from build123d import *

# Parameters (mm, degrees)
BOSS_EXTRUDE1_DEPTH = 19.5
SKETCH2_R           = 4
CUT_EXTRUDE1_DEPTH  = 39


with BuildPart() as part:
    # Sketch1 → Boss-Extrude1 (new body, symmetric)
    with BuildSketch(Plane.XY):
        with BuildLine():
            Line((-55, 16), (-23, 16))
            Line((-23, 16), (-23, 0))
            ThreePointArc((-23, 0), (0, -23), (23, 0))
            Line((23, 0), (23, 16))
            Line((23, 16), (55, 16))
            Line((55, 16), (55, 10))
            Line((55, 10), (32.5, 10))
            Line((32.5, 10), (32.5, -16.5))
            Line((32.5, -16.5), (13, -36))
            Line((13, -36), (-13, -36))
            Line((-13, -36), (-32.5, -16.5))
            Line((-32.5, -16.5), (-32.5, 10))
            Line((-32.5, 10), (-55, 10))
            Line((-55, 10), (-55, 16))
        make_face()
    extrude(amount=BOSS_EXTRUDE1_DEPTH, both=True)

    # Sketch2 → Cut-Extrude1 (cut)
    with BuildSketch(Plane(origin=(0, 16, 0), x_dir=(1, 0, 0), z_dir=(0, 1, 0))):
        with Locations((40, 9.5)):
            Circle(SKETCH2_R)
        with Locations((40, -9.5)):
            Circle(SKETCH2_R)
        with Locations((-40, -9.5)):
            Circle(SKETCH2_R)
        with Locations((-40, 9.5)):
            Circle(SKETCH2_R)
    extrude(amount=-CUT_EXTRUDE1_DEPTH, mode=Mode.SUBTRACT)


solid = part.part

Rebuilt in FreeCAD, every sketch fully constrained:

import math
import FreeCAD as App
import Part
import Sketcher
Q = App.Units.Quantity

doc = App.newDocument("Part")
body = doc.addObject("PartDesign::Body", "Body")

sketch1 = body.newObject("Sketcher::SketchObject", "Sketch")
sketch1.AttachmentSupport = (doc.getObject("XY_Plane"), [""])
sketch1.MapMode = "FlatFace"
sketch1.addGeometry(Part.LineSegment(App.Vector(-23, 16, 0), App.Vector(-55, 16, 0)), False)
sketch1.addGeometry(Part.LineSegment(App.Vector(-55, 16, 0), App.Vector(-55, 10, 0)), False)
sketch1.addGeometry(Part.LineSegment(App.Vector(-55, 10, 0), App.Vector(-32, 10, 0)), False)
sketch1.addGeometry(Part.LineSegment(App.Vector(-32, 10, 0), App.Vector(-32, -16, 0)), False)
sketch1.addGeometry(Part.LineSegment(App.Vector(-32, -16, 0), App.Vector(-13, -36, 0)), False)
sketch1.addGeometry(Part.LineSegment(App.Vector(-13, -36, 0), App.Vector(13, -36, 0)), False)
sketch1.addGeometry(Part.LineSegment(App.Vector(13, -36, 0), App.Vector(32, -16, 0)), False)
sketch1.addGeometry(Part.LineSegment(App.Vector(32, -16, 0), App.Vector(32, 10, 0)), False)
sketch1.addGeometry(Part.LineSegment(App.Vector(32, 10, 0), App.Vector(55, 10, 0)), False)
sketch1.addGeometry(Part.LineSegment(App.Vector(55, 10, 0), App.Vector(55, 16, 0)), False)
sketch1.addGeometry(Part.LineSegment(App.Vector(55, 16, 0), App.Vector(23, 16, 0)), False)
sketch1.addGeometry(Part.LineSegment(App.Vector(23, 16, 0), App.Vector(23, 0, 0)), False)
sketch1.addGeometry(Part.ArcOfCircle(Part.Circle(App.Vector(0, 0, 0), App.Vector(0, 0, 1), 23), math.radians(180), math.radians(360)), False)
sketch1.addGeometry(Part.LineSegment(App.Vector(-23, 0, 0), App.Vector(-23, 16, 0)), False)
sketch1.addConstraint(Sketcher.Constraint("Coincident", 0, 2, 1, 1))
sketch1.addConstraint(Sketcher.Constraint("Coincident", 1, 2, 2, 1))
sketch1.addConstraint(Sketcher.Constraint("Coincident", 2, 2, 3, 1))
sketch1.addConstraint(Sketcher.Constraint("Coincident", 3, 2, 4, 1))
sketch1.addConstraint(Sketcher.Constraint("Coincident", 4, 2, 5, 1))
sketch1.addConstraint(Sketcher.Constraint("Coincident", 5, 2, 6, 1))
sketch1.addConstraint(Sketcher.Constraint("Coincident", 6, 2, 7, 1))
sketch1.addConstraint(Sketcher.Constraint("Coincident", 7, 2, 8, 1))
sketch1.addConstraint(Sketcher.Constraint("Coincident", 8, 2, 9, 1))
sketch1.addConstraint(Sketcher.Constraint("Coincident", 9, 2, 10, 1))
sketch1.addConstraint(Sketcher.Constraint("Coincident", 10, 2, 11, 1))
sketch1.addConstraint(Sketcher.Constraint("Tangent", 11, 2, 12, 2))
sketch1.addConstraint(Sketcher.Constraint("Tangent", 12, 1, 13, 1))
sketch1.addConstraint(Sketcher.Constraint("Coincident", 13, 2, 0, 1))
sketch1.addConstraint(Sketcher.Constraint("Horizontal", 0))
sketch1.addConstraint(Sketcher.Constraint("Vertical", 1))
sketch1.addConstraint(Sketcher.Constraint("Horizontal", 2))
sketch1.addConstraint(Sketcher.Constraint("Vertical", 3))
sketch1.addConstraint(Sketcher.Constraint("Horizontal", 5))
sketch1.addConstraint(Sketcher.Constraint("Vertical", 7))
sketch1.addConstraint(Sketcher.Constraint("Horizontal", 8))
sketch1.addConstraint(Sketcher.Constraint("Vertical", 9))
sketch1.addConstraint(Sketcher.Constraint("Horizontal", 10))
sketch1.addConstraint(Sketcher.Constraint("Vertical", 11))
sketch1.addConstraint(Sketcher.Constraint("Vertical", 13))
sketch1.addConstraint(Sketcher.Constraint("Coincident", 12, 3, -1, 1))
sketch1.addConstraint(Sketcher.Constraint("Symmetric", 3, 2, 6, 2, -2))
sketch1.addConstraint(Sketcher.Constraint("Symmetric", 1, 2, 8, 2, -2))
sketch1.addConstraint(Sketcher.Constraint("Perpendicular", 4, 6))
sketch1.addConstraint(Sketcher.Constraint("Horizontal", 0, 2, 9, 2))
sketch1.addConstraint(Sketcher.Constraint("Equal", 4, 6))
sketch1.addConstraint(Sketcher.Constraint("Radius", 12, Q("23 mm")))
sketch1.addConstraint(Sketcher.Constraint("DistanceX", 0, 2, 0, 1, Q("32 mm")))
sketch1.addConstraint(Sketcher.Constraint("DistanceX", 5, 1, 5, 2, Q("26 mm")))
sketch1.addConstraint(Sketcher.Constraint("DistanceY", 1, 2, 1, 1, Q("6 mm")))
sketch1.addConstraint(Sketcher.Constraint("DistanceY", 11, 2, 11, 1, Q("16 mm")))
sketch1.addConstraint(Sketcher.Constraint("DistanceX", 2, 1, 2, 2, Q("22.5 mm")))
sketch1.addConstraint(Sketcher.Constraint("DistanceY", 3, 2, 3, 1, Q("26.5 mm")))
pad1 = body.newObject("PartDesign::Pad", "Pad")
pad1.Profile = sketch1
pad1.Length = 39
pad1.Midplane = True

sketch2 = body.newObject("Sketcher::SketchObject", "Sketch001")
sketch2.AttachmentSupport = (doc.getObject("XZ_Plane"), [""])
sketch2.MapMode = "FlatFace"
sketch2.AttachmentOffset = App.Placement(App.Vector(0, 0, -16), App.Rotation())
sketch2.addGeometry(Part.Circle(App.Vector(40, -9.5, 0), App.Vector(0, 0, 1), 4), False)
sketch2.addGeometry(Part.Circle(App.Vector(40, 9.5, 0), App.Vector(0, 0, 1), 4), False)
sketch2.addGeometry(Part.Circle(App.Vector(-40, 9.5, 0), App.Vector(0, 0, 1), 4), False)
sketch2.addGeometry(Part.Circle(App.Vector(-40, -9.5, 0), App.Vector(0, 0, 1), 4), False)
sketch2.addConstraint(Sketcher.Constraint("Equal", 0, 1))
sketch2.addConstraint(Sketcher.Constraint("Equal", 1, 2))
sketch2.addConstraint(Sketcher.Constraint("Equal", 2, 3))
sketch2.addConstraint(Sketcher.Constraint("Symmetric", 0, 3, 2, 3, -1, 1))
sketch2.addConstraint(Sketcher.Constraint("Symmetric", 1, 3, 3, 3, -1, 1))
sketch2.addConstraint(Sketcher.Constraint("Symmetric", 1, 3, 2, 3, -2))
sketch2.addConstraint(Sketcher.Constraint("Diameter", 0, Q("8 mm")))
sketch2.addConstraint(Sketcher.Constraint("DistanceX", -1, 1, 0, 3, Q("40 mm")))
sketch2.addConstraint(Sketcher.Constraint("DistanceY", 0, 3, 1, 3, Q("19 mm")))
pocket1 = body.newObject("PartDesign::Pocket", "Pocket")
pocket1.Profile = sketch2
pocket1.Length = 39
pocket1.Reversed = True

doc.recompute()
